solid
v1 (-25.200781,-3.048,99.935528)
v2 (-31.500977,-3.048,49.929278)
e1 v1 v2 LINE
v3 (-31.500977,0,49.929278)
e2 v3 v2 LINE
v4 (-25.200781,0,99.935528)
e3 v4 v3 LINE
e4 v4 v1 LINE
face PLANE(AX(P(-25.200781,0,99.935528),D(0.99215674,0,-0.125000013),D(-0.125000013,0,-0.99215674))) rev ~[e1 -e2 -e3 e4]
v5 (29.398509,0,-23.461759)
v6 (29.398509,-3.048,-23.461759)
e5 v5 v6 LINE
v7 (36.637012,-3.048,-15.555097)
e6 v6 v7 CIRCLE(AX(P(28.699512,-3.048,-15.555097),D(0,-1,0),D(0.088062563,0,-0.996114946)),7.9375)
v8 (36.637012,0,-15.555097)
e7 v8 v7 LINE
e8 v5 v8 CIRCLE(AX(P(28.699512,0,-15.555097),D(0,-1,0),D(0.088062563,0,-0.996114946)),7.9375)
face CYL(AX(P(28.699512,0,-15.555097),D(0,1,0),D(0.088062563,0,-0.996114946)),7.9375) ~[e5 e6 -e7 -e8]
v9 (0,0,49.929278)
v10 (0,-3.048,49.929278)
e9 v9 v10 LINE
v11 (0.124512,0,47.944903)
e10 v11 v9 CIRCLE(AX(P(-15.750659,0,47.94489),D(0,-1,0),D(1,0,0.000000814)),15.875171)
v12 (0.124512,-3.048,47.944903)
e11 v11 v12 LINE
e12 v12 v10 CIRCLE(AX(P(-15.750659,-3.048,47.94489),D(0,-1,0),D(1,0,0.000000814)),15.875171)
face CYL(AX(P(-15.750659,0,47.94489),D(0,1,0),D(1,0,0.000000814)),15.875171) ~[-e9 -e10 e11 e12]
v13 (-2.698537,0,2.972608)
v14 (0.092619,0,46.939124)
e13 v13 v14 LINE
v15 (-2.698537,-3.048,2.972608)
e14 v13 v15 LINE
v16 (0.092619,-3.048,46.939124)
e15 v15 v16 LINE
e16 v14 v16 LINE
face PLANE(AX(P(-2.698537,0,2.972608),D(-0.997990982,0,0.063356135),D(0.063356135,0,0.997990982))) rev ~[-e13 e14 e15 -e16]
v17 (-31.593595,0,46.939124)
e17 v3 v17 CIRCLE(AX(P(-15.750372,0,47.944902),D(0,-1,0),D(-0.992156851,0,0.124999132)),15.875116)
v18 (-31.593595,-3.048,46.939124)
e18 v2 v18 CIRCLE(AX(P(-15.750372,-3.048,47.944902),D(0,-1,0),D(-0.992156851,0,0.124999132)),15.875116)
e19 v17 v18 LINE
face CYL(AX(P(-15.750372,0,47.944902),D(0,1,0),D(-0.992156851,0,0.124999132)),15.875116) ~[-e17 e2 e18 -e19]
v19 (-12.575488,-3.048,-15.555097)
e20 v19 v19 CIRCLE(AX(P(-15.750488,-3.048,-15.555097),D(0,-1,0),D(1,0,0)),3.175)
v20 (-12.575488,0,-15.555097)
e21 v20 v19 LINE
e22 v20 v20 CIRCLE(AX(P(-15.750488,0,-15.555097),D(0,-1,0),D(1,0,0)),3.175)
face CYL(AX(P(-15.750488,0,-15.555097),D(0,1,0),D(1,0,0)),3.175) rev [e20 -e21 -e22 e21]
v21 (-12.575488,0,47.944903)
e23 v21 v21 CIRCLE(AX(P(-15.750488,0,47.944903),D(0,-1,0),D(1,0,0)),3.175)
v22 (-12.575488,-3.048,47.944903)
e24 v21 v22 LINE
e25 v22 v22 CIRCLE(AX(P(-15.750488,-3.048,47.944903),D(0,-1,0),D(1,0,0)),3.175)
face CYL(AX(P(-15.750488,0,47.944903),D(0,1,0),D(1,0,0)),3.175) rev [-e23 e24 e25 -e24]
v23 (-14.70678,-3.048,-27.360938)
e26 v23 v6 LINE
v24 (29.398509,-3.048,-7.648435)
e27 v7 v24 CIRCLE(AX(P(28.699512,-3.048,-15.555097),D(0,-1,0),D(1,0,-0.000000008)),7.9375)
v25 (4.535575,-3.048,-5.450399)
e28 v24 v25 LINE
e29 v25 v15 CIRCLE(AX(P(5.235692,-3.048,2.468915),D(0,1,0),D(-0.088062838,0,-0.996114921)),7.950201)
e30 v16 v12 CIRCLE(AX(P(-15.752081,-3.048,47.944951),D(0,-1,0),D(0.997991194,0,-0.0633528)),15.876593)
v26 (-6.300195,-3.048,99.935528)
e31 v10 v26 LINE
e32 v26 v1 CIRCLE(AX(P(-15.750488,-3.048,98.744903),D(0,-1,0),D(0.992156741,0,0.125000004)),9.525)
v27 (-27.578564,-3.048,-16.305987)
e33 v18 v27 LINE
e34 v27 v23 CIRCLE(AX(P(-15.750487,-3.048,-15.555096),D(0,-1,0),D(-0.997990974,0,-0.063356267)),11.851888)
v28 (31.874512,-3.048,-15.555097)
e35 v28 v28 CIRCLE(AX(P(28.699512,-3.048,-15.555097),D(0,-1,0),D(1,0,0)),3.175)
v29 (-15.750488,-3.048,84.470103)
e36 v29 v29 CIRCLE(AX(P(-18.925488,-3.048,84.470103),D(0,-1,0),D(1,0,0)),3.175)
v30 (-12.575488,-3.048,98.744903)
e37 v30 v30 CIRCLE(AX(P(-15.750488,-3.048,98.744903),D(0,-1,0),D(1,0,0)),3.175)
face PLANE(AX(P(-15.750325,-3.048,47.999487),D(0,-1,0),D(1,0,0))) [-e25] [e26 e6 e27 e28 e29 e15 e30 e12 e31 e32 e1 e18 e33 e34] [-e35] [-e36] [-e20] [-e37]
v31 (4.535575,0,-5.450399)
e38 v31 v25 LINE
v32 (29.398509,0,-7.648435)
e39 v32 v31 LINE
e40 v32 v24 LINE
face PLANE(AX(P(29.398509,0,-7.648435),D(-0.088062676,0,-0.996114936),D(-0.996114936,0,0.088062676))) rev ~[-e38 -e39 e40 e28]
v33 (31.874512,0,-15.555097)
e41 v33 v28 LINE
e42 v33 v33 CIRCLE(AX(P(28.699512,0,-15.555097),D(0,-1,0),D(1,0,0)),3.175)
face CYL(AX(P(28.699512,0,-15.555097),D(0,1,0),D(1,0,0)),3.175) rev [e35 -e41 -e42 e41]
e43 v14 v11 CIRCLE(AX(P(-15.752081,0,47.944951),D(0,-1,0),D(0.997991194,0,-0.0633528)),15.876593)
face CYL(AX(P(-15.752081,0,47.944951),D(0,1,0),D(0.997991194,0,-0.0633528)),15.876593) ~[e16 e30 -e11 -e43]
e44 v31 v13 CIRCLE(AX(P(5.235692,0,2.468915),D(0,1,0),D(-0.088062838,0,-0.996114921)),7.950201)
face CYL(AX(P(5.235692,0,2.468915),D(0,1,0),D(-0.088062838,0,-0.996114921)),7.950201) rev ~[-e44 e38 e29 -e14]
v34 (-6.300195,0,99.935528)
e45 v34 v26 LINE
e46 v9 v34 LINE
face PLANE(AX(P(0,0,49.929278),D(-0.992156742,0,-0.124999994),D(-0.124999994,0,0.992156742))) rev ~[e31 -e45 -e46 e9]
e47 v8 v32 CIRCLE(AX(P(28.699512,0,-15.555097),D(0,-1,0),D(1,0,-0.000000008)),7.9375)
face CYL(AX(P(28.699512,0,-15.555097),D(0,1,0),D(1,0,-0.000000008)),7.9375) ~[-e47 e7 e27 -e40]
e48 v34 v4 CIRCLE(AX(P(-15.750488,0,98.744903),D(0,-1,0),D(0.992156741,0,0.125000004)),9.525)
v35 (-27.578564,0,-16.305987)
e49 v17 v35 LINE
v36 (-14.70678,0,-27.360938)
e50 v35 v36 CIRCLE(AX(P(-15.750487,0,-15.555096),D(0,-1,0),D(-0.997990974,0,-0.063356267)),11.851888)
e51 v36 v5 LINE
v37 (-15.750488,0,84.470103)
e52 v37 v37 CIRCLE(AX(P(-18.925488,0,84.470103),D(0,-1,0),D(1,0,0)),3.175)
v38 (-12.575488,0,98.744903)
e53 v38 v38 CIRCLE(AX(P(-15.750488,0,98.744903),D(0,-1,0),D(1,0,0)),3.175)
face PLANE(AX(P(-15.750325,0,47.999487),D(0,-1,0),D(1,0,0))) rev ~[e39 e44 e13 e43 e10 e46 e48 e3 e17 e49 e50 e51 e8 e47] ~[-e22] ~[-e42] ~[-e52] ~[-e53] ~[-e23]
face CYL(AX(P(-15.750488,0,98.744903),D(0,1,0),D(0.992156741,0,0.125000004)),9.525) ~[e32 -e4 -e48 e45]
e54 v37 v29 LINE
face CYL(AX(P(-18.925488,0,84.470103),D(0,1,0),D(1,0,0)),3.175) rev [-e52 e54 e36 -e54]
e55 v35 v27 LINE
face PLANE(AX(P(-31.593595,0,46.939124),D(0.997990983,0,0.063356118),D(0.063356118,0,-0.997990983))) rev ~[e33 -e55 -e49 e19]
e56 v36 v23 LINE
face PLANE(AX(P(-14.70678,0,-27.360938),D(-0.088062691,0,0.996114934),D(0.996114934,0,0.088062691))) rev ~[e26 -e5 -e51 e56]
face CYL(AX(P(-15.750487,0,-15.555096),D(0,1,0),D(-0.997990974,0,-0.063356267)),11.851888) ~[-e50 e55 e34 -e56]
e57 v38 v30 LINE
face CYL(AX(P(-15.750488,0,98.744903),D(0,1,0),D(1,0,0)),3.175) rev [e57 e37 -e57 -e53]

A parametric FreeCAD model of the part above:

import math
import FreeCAD as App
import Part
import Sketcher
Q = App.Units.Quantity

doc = App.newDocument("Part")
body = doc.addObject("PartDesign::Body", "Body")

# Sketch on XZ plane
sketch1 = body.newObject("Sketcher::SketchObject", "Sketch")
sketch1.AttachmentSupport = (doc.getObject("XZ_Plane"), [""])
sketch1.MapMode = "FlatFace"
sketch1.addGeometry(Part.ArcOfCircle(Part.Circle(App.Vector(-15.750659, 47.94489, 0), App.Vector(0, 0, 1), 15.875171), math.radians(0.000047), math.radians(7.180725)), False)
sketch1.addGeometry(Part.LineSegment(App.Vector(0, 49.929278, 0), App.Vector(-6.300195, 99.935528, 0)), False)
sketch1.addGeometry(Part.ArcOfCircle(Part.Circle(App.Vector(-15.750488, 98.744903, 0), App.Vector(0, 0, 1), 9.525), math.radians(7.180756), math.radians(172.819244)), False)
sketch1.addGeometry(Part.LineSegment(App.Vector(-25.200781, 99.935528, 0), App.Vector(-31.500977, 49.929278, 0)), False)
sketch1.addGeometry(Part.ArcOfCircle(Part.Circle(App.Vector(-15.750372, 47.944902, 0), App.Vector(0, 0, 1), 15.875116), math.radians(172.819294), math.radians(183.632444)), False)
sketch1.addGeometry(Part.LineSegment(App.Vector(-31.593595, 46.939124, 0), App.Vector(-27.578564, -16.305987, 0)), False)
sketch1.addGeometry(Part.ArcOfCircle(Part.Circle(App.Vector(-15.750487, -15.555096, 0), App.Vector(0, 0, 1), 11.851888), math.radians(-176.36752), math.radians(-84.947844)), False)
sketch1.addGeometry(Part.LineSegment(App.Vector(-14.70678, -27.360938, 0), App.Vector(29.398509, -23.461759, 0)), False)
sketch1.addGeometry(Part.ArcOfCircle(Part.Circle(App.Vector(28.699512, -15.555097, 0), App.Vector(0, 0, 1), 7.9375), math.radians(-84.947842), math.radians(0)), False)
sketch1.addGeometry(Part.ArcOfCircle(Part.Circle(App.Vector(28.699512, -15.555097, 0), App.Vector(0, 0, 1), 7.9375), math.radians(0), math.radians(84.947842)), False)
sketch1.addGeometry(Part.LineSegment(App.Vector(29.398509, -7.648435, 0), App.Vector(4.535575, -5.450399, 0)), False)
sketch1.addGeometry(Part.ArcOfCircle(Part.Circle(App.Vector(5.235692, 2.468915, 0), App.Vector(0, 0, 1), 7.950201), math.radians(176.367536), math.radians(264.947827)), False)
sketch1.addGeometry(Part.LineSegment(App.Vector(-2.698537, 2.972608, 0), App.Vector(0.092619, 46.939124, 0)), False)
sketch1.addGeometry(Part.ArcOfCircle(Part.Circle(App.Vector(-15.752081, 47.944951, 0), App.Vector(0, 0, 1), 15.876593), math.radians(-3.632281), math.radians(-0.000172)), False)
sketch1.addGeometry(Part.Circle(App.Vector(-15.750488, -15.555097, 0), App.Vector(0, 0, 1), 3.175), False)
sketch1.addGeometry(Part.Circle(App.Vector(28.699512, -15.555097, 0), App.Vector(0, 0, 1), 3.175), False)
sketch1.addGeometry(Part.Circle(App.Vector(-15.750488, 47.944903, 0), App.Vector(0, 0, 1), 3.175), False)
sketch1.addGeometry(Part.Circle(App.Vector(-18.925488, 84.470103, 0), App.Vector(0, 0, 1), 3.175), False)
sketch1.addGeometry(Part.Circle(App.Vector(-15.750488, 98.744903, 0), App.Vector(0, 0, 1), 3.175), False)
sketch1.addConstraint(Sketcher.Constraint("Coincident", 0, 2, 1, 1))
sketch1.addConstraint(Sketcher.Constraint("Coincident", 1, 2, 2, 1))
sketch1.addConstraint(Sketcher.Constraint("Coincident", 2, 2, 3, 1))
sketch1.addConstraint(Sketcher.Constraint("Coincident", 3, 2, 4, 1))
sketch1.addConstraint(Sketcher.Constraint("Coincident", 4, 2, 5, 1))
sketch1.addConstraint(Sketcher.Constraint("Coincident", 5, 2, 6, 1))
sketch1.addConstraint(Sketcher.Constraint("Coincident", 6, 2, 7, 1))
sketch1.addConstraint(Sketcher.Constraint("Coincident", 7, 2, 8, 1))
sketch1.addConstraint(Sketcher.Constraint("Coincident", 8, 2, 9, 1))
sketch1.addConstraint(Sketcher.Constraint("Coincident", 9, 2, 10, 1))
sketch1.addConstraint(Sketcher.Constraint("Coincident", 10, 2, 11, 2))
sketch1.addConstraint(Sketcher.Constraint("Coincident", 11, 1, 12, 1))
sketch1.addConstraint(Sketcher.Constraint("Coincident", 12, 2, 13, 1))
sketch1.addConstraint(Sketcher.Constraint("Coincident", 13, 2, 0, 1))
sketch1.addConstraint(Sketcher.Constraint("Coincident", 9, 3, 8, 3))
sketch1.addConstraint(Sketcher.Constraint("Coincident", 14, 3, 6, 3))
sketch1.addConstraint(Sketcher.Constraint("Coincident", 15, 3, 8, 3))
sketch1.addConstraint(Sketcher.Constraint("Coincident", 18, 3, 2, 3))
sketch1.addConstraint(Sketcher.Constraint("PointOnObject", 0, 2, -2))
sketch1.addConstraint(Sketcher.Constraint("Diameter", 14, Q("0.25 in")))
sketch1.addConstraint(Sketcher.Constraint("Diameter", 15, Q("0.25 in")))
sketch1.addConstraint(Sketcher.Constraint("Diameter", 16, Q("0.25 in")))
sketch1.addConstraint(Sketcher.Constraint("Diameter", 17, Q("0.25 in")))
sketch1.addConstraint(Sketcher.Constraint("Diameter", 18, Q("0.25 in")))
sketch1.addConstraint(Sketcher.Constraint("Radius", 2, Q("0.375 in")))
sketch1.addConstraint(Sketcher.Constraint("Radius", 8, Q("0.3125 in")))
sketch1.addConstraint(Sketcher.Constraint("Radius", 11, Q("0.3130001 in")))
sketch1.addConstraint(Sketcher.Constraint("DistanceY", 4, 3, 2, 3, Q("2 in")))
sketch1.addConstraint(Sketcher.Constraint("DistanceY", 16, 3, 2, 3, Q("2 in")))
sketch1.addConstraint(Sketcher.Constraint("DistanceY", 6, 3, 4, 3, Q("2.4999999 in")))
sketch1.addConstraint(Sketcher.Constraint("DistanceY", 8, 3, 4, 3, Q("2.5 in")))
sketch1.addConstraint(Sketcher.Constraint("DistanceX", 6, 3, 8, 3, Q("1.75 in")))
sketch1.addConstraint(Sketcher.Constraint("DistanceX", 2, 3, 8, 3, Q("1.75 in")))
sketch1.addConstraint(Sketcher.Constraint("Radius", 0, 15.875171))
sketch1.addConstraint(Sketcher.Constraint("DistanceX", 17, 3, 2, 3, Q("0.125 in")))
sketch1.addConstraint(Sketcher.Constraint("DistanceY", 17, 3, 2, 3, Q("0.562 in")))
sketch1.addConstraint(Sketcher.Constraint("DistanceX", 17, 3, 16, 3, Q("0.125 in")))
sketch1.addConstraint(Sketcher.Constraint("DistanceY", 4, 3, 0, 2, Q("0.078125 in")))
sketch1.addConstraint(Sketcher.Constraint("DistanceY", 18, 3, 1, 2, Q("0.046875 in")))
sketch1.addConstraint(Sketcher.Constraint("DistanceY", 18, 3, 2, 2, Q("0.046875 in")))
sketch1.addConstraint(Sketcher.Constraint("DistanceY", 16, 3, 3, 2, Q("0.078125 in")))
sketch1.addConstraint(Sketcher.Constraint("DistanceY", 5, 2, 11, 1, Q("0.7589998 in")))
sketch1.addConstraint(Sketcher.Constraint("DistanceY", 13, 2, 0, 2, Q("0.078125 in")))
sketch1.addConstraint(Sketcher.Constraint("DistanceX", 16, 3, 13, 2, Q("0.625 in")))
sketch1.addConstraint(Sketcher.Constraint("Radius", 4, 15.875116))
sketch1.addConstraint(Sketcher.Constraint("Radius", 6, 11.851888))
sketch1.addConstraint(Sketcher.Constraint("Radius", 13, 15.876593))
sketch1.addConstraint(Sketcher.Constraint("DistanceX", 5, 2, 11, 3, Q("1.2918999 in")))
sketch1.addConstraint(Sketcher.Constraint("DistanceY", 10, 2, -1, 1, 5.450399))
sketch1.addConstraint(Sketcher.Constraint("DistanceX", 13, 3, 12, 2, 15.8447))
sketch1.addConstraint(Sketcher.Constraint("Distance", 7, 44.277309))
sketch1.addConstraint(Sketcher.Constraint("DistanceX", 0, 3, -1, 1, 15.750659))
sketch1.addConstraint(Sketcher.Constraint("DistanceY", -1, 1, 0, 3, 47.94489))
sketch1.addConstraint(Sketcher.Constraint("DistanceX", 4, 3, -1, 1, 15.750372))
sketch1.addConstraint(Sketcher.Constraint("DistanceY", -1, 1, 13, 3, 47.944951))
sketch1.addConstraint(Sketcher.Constraint("DistanceX", 6, 2, -1, 1, 14.70678))
sketch1.addConstraint(Sketcher.Constraint("DistanceX", -1, 1, 9, 2, 29.398509))
sketch1.addConstraint(Sketcher.Constraint("DistanceY", -1, 1, 11, 1, 2.972608))
sketch1.addConstraint(Sketcher.Constraint("DistanceY", 6, 3, 11, 3, 18.024011))
sketch1.addConstraint(Sketcher.Constraint("DistanceX", 4, 2, 3, 2, 0.092618))
sketch1.addConstraint(Sketcher.Constraint("DistanceY", 8, 2, 9, 2, 7.906662))
pad1 = body.newObject("PartDesign::Pad", "Pad")
pad1.Profile = sketch1
pad1.Length = Q("0.12 in")

doc.recompute()
